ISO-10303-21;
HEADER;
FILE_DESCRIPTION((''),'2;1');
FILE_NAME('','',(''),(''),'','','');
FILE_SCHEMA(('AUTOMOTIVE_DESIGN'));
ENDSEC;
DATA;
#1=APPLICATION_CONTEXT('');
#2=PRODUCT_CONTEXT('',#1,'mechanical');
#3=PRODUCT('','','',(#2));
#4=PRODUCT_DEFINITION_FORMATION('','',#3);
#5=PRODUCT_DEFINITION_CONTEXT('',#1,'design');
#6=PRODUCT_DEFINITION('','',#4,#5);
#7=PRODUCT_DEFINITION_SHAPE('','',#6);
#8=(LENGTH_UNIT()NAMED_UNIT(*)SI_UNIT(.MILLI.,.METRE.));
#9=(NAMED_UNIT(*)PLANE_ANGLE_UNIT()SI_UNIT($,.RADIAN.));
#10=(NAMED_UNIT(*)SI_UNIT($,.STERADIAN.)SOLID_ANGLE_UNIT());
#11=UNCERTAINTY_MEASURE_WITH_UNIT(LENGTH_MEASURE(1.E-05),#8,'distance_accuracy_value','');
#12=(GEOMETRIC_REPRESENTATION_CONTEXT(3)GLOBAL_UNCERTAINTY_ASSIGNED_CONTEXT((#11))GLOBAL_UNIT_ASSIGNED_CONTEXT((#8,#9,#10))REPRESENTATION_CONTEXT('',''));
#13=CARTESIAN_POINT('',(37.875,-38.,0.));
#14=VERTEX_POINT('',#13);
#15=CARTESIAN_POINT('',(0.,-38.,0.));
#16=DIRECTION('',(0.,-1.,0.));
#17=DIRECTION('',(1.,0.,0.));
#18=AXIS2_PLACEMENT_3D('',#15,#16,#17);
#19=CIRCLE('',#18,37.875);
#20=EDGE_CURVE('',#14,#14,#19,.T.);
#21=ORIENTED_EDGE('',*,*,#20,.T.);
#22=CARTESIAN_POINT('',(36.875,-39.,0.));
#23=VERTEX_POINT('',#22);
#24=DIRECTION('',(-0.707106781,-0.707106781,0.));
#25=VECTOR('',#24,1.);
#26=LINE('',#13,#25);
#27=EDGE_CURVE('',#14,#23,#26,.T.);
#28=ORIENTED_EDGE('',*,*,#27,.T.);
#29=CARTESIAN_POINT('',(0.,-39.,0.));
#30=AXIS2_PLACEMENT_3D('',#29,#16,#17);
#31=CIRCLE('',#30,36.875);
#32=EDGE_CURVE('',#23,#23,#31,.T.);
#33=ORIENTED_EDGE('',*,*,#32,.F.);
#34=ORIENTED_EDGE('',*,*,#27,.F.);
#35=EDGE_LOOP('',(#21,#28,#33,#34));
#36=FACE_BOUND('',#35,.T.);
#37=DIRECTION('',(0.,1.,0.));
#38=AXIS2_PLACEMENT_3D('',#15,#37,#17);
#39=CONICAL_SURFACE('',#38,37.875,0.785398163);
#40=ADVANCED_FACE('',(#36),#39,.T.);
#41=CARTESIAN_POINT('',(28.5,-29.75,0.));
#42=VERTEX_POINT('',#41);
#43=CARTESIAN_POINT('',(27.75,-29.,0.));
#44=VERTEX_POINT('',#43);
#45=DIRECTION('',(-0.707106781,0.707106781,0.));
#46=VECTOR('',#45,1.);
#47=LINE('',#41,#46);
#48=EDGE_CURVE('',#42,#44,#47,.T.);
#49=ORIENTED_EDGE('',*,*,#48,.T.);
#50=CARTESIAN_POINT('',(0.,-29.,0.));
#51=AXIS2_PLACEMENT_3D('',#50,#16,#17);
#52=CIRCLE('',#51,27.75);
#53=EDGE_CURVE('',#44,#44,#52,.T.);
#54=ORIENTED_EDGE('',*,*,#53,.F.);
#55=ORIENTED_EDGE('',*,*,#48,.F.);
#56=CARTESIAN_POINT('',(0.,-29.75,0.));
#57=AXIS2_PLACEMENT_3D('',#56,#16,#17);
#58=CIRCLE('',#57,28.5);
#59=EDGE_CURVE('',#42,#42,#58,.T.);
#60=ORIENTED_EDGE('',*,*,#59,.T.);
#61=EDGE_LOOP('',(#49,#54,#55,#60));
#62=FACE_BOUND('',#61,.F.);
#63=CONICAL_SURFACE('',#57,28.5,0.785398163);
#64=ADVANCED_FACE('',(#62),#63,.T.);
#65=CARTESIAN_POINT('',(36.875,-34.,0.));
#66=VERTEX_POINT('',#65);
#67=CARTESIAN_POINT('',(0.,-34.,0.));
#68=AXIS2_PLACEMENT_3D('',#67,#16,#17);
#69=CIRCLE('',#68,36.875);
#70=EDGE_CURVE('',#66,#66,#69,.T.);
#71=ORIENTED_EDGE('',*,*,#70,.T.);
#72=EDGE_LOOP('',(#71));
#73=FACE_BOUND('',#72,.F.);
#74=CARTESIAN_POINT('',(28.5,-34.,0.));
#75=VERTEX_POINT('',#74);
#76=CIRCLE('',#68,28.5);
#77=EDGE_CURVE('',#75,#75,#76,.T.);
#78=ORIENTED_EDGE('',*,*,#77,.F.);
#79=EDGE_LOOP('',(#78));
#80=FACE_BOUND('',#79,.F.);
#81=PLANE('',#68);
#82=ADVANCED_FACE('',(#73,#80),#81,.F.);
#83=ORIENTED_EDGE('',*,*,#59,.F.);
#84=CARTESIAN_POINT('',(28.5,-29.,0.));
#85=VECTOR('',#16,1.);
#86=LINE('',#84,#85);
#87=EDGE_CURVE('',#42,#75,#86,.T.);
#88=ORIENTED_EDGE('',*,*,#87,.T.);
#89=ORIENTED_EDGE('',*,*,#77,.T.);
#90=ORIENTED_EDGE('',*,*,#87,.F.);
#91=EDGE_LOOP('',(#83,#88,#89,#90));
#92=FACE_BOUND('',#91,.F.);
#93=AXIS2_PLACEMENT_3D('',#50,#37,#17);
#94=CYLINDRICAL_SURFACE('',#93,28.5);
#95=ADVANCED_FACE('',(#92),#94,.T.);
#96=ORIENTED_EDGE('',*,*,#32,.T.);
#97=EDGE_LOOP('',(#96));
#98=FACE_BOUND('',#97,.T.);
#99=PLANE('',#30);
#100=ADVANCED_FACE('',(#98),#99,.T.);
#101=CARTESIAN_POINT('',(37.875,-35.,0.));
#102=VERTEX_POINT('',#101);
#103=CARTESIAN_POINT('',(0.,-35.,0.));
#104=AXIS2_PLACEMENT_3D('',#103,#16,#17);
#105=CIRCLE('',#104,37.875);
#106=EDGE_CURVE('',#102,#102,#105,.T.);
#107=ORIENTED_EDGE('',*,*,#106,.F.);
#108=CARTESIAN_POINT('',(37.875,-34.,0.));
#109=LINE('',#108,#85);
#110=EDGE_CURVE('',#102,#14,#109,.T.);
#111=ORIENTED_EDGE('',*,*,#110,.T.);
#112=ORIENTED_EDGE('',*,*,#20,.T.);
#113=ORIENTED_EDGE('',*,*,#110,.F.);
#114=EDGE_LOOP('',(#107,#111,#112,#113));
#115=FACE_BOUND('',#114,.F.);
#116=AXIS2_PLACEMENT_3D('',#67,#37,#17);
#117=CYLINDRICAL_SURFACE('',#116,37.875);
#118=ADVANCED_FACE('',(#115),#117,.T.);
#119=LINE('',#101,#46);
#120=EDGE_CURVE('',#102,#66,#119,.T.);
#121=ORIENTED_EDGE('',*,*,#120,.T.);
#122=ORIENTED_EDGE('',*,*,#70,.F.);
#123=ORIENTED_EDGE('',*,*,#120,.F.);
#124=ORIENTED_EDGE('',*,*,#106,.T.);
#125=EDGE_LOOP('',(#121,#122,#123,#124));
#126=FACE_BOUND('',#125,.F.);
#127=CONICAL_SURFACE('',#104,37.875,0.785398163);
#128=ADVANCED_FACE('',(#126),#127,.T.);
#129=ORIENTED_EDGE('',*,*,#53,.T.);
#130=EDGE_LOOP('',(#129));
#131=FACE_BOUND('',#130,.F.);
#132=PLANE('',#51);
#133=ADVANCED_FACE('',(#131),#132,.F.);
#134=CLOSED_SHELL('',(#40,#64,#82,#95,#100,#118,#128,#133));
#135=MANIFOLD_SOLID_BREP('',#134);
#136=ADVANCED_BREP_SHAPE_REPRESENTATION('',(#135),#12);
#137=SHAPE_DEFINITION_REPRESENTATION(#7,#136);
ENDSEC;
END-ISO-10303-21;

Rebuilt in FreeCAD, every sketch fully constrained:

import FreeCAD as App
import Part
import Sketcher
Q = App.Units.Quantity


def edges_at(feature, points):
    """Names of the edges that pass closest to the given points."""
    edges = feature.Shape.Edges
    near = lambda p: min(range(len(edges)), key=lambda i: edges[i].distToShape(Part.Vertex(*p))[0])
    return sorted({f"Edge{near(p) + 1}" for p in points})

doc = App.newDocument("Part")
body = doc.addObject("PartDesign::Body", "Body")

# Sketch on XZ plane
sketch1 = doc.addObject("Sketcher::SketchObject", "Sketch")
body.addObject(sketch1)
sketch1.AttachmentSupport = (doc.XZ_Plane, [""])
sketch1.MapMode = "FlatFace"
sketch1.AttachmentOffset = App.Placement(App.Vector(0, 0, 29), App.Rotation())
sketch1.addGeometry(Part.Circle(App.Vector(0, 0, 0), App.Vector(0, 0, 1), 28), False)
sketch1.addConstraint([
    Sketcher.Constraint("Coincident", 0, 3, -1, 1),
    Sketcher.Constraint("Diameter", 0, Q("57 mm")),
])
pad1 = doc.addObject("PartDesign::Pad", "Pad")
body.addObject(pad1)
pad1.Profile = sketch1
pad1.Length = 5

# Sketch on XZ plane
sketch2 = doc.addObject("Sketcher::SketchObject", "Sketch001")
body.addObject(sketch2)
sketch2.AttachmentSupport = (doc.XZ_Plane, [""])
sketch2.MapMode = "FlatFace"
sketch2.AttachmentOffset = App.Placement(App.Vector(0, 0, 34), App.Rotation())
sketch2.addGeometry(Part.Circle(App.Vector(0, 0, 0), App.Vector(0, 0, 1), 38), False)
sketch2.addConstraint([
    Sketcher.Constraint("Coincident", 0, 3, -1, 1),
    Sketcher.Constraint("Diameter", 0, Q("75.75 mm")),
])
pad2 = doc.addObject("PartDesign::Pad", "Pad001")
body.addObject(pad2)
pad2.Profile = sketch2
pad2.Length = 5
doc.recompute()

chamfer = doc.addObject("PartDesign::Chamfer", "Chamfer")
body.addObject(chamfer)
chamfer.Base = (pad2, edges_at(pad2, [(-37.875, -39, 0), (-37.875, -34, 0)]))
chamfer.Size = 1
doc.recompute()

chamfer2 = doc.addObject("PartDesign::Chamfer", "Chamfer001")
body.addObject(chamfer2)
chamfer2.Base = (chamfer, edges_at(chamfer, [(-28.5, -29, 0)]))
chamfer2.Size = 0.75

doc.recompute()
